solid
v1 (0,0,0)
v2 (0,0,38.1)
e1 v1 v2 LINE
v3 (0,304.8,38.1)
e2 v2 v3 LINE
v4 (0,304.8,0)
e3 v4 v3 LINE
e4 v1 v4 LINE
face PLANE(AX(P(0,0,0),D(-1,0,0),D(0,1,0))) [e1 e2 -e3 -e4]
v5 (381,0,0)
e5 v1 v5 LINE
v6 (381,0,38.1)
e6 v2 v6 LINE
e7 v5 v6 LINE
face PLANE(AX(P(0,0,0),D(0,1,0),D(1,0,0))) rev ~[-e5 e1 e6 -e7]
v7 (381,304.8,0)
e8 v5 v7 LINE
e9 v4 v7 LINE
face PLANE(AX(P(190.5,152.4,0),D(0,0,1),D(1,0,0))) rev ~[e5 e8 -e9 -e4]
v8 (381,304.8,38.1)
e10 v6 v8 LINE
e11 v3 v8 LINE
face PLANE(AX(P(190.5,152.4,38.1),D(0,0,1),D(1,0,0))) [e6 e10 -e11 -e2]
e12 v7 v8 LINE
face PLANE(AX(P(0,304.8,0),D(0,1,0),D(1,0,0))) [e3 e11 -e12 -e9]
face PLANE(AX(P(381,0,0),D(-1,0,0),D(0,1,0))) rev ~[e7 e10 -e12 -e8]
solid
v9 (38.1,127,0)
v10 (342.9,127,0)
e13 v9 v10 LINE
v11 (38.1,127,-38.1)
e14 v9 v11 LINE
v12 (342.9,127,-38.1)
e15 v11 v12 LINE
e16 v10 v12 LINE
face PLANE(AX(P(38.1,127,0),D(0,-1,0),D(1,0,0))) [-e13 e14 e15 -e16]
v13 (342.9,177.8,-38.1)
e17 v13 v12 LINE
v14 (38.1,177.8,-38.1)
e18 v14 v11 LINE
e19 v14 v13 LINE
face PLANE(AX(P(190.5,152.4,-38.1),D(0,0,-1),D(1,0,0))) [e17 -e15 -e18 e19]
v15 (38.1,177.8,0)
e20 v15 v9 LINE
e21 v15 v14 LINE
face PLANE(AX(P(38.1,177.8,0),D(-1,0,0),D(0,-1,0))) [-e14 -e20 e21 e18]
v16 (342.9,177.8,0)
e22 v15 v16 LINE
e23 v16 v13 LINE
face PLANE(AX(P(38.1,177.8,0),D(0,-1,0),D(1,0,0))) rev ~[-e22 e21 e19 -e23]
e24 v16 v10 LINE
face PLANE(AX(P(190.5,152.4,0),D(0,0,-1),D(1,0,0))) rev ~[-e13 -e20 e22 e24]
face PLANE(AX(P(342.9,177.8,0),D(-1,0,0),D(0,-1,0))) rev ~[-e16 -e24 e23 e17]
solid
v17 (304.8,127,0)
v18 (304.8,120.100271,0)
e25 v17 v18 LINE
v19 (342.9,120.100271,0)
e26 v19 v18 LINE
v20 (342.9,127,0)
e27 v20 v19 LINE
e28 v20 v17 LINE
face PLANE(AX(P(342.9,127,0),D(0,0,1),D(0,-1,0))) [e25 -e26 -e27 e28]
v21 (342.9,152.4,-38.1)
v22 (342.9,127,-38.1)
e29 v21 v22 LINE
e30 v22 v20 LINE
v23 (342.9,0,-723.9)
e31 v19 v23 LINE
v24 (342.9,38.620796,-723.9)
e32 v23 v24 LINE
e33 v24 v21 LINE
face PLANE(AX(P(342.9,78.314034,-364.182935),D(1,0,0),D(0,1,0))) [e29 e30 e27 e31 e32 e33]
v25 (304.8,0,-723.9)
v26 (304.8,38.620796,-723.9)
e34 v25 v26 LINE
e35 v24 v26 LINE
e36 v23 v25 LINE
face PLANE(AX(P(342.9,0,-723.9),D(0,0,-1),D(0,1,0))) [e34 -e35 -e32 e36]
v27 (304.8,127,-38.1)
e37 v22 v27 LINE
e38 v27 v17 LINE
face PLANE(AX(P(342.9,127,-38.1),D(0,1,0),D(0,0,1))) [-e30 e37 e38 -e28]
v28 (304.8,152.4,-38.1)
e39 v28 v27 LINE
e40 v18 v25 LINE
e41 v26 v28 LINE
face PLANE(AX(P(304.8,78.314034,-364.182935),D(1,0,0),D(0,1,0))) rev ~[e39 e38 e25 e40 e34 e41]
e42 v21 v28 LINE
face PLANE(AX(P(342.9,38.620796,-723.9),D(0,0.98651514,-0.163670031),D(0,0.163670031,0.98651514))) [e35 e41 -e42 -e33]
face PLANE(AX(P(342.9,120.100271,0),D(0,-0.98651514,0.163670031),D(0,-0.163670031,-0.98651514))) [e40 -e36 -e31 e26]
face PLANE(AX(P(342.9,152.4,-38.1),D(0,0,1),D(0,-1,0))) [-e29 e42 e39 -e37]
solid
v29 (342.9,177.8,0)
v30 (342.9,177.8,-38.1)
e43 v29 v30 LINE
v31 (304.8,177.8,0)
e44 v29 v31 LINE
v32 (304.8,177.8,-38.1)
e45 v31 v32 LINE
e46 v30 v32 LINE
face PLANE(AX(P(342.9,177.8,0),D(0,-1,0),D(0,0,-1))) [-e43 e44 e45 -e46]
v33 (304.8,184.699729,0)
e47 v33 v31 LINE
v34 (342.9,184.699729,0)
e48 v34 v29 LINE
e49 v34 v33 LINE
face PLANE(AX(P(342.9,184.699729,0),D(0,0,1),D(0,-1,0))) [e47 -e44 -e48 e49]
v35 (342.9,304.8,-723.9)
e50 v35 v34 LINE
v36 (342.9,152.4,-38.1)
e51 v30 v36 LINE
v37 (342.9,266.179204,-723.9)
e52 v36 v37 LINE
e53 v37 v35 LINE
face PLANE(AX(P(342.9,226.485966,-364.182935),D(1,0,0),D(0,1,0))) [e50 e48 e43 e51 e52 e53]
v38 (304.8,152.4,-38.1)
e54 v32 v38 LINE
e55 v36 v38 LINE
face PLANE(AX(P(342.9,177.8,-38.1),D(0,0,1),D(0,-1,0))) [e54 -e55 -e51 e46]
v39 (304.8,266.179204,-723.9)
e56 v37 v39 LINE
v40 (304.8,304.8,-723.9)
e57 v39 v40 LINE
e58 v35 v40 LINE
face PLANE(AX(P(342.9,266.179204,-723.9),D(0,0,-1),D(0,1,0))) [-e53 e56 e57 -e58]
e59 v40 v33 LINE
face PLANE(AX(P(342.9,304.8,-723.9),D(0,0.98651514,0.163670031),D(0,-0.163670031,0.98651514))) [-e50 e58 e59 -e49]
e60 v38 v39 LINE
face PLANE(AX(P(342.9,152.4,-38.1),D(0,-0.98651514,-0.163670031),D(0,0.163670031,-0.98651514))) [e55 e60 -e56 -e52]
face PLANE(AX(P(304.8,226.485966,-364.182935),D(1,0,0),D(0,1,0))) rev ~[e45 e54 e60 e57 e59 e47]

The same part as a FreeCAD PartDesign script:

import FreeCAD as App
import Part
import Sketcher
from FreeCAD import Vector
Q = App.Units.Quantity


def add_polygon(sketch, points):
    """Adds a closed chain of lines whose ends are joined by coincident constraints."""
    first, n = sketch.GeometryCount, len(points)
    for a, b in zip(points, points[1:] + points[:1]):
        sketch.addGeometry(Part.LineSegment(App.Vector(*a, 0), App.Vector(*b, 0)), False)
    for i in range(n):
        sketch.addConstraint(Sketcher.Constraint("Coincident", first + i, 2, first + (i + 1) % n, 1))

doc = App.newDocument("Part")
body = doc.addObject("PartDesign::Body", "Body")

sketch1 = body.newObject("Sketcher::SketchObject", "Sketch")
sketch1.AttachmentSupport = (doc.getObject("XY_Plane"), [""])
sketch1.MapMode = "FlatFace"
add_polygon(sketch1, [(0, 304.8), (0, 0), (381, 0), (381, 304.8)])
sketch1.addConstraint(Sketcher.Constraint("Vertical", 0))
sketch1.addConstraint(Sketcher.Constraint("Horizontal", 1))
sketch1.addConstraint(Sketcher.Constraint("Vertical", 2))
sketch1.addConstraint(Sketcher.Constraint("Horizontal", 3))
sketch1.addConstraint(Sketcher.Constraint("Coincident", 0, 2, -1, 1))
sketch1.addConstraint(Sketcher.Constraint("DistanceX", 1, 1, 1, 2, Q("15 in")))
sketch1.addConstraint(Sketcher.Constraint("DistanceY", 0, 2, 0, 1, Q("12 in")))
pad1 = body.newObject("PartDesign::Pad", "Pad")
pad1.Profile = sketch1
pad1.Length = Q("1.5 in")
body2 = doc.addObject("PartDesign::Body", "Body001")

sketch2 = body2.newObject("Sketcher::SketchObject", "Sketch001")
sketch2.AttachmentSupport = (doc.getObject("XY_Plane001"), [""])
sketch2.MapMode = "FlatFace"
add_polygon(sketch2, [(38.1, 127), (38.1, 177.8), (342.9, 177.8), (342.9, 127)])
sketch2.addConstraint(Sketcher.Constraint("Vertical", 0))
sketch2.addConstraint(Sketcher.Constraint("Horizontal", 1))
sketch2.addConstraint(Sketcher.Constraint("Vertical", 2))
sketch2.addConstraint(Sketcher.Constraint("Horizontal", 3))
sketch2.addConstraint(Sketcher.Constraint("DistanceX", 1, 1, 1, 2, Q("12 in")))
sketch2.addConstraint(Sketcher.Constraint("DistanceY", 0, 1, 0, 2, Q("2 in")))
sketch2.addConstraint(Sketcher.Constraint("DistanceY", -1, 1, 0, 2, Q("7 in")))
sketch2.addConstraint(Sketcher.Constraint("DistanceX", -1, 1, 0, 2, Q("1.5 in")))
pad2 = body2.newObject("PartDesign::Pad", "Pad001")
pad2.Profile = sketch2
pad2.Length = Q("1.5 in")
pad2.Reversed = True
body3 = doc.addObject("PartDesign::Body", "Body002")
body3.AllowCompound = True

sketch3 = body3.newObject("Sketcher::SketchObject", "Sketch002")
sketch3.AttachmentSupport = (doc.getObject("YZ_Plane002"), [""])
sketch3.MapMode = "FlatFace"
sketch3.AttachmentOffset = App.Placement(Vector(0, 0, 13.5 * 25.4), App.Rotation())
add_polygon(sketch3, [(127, 0), (120.100271, 0), (0, -723.9), (38.620796, -723.9), (152.4, -38.1), (127, -38.1)])
add_polygon(sketch3, [(177.8, -38.1), (152.4, -38.1), (266.179204, -723.9), (304.8, -723.9), (184.699729, 0), (177.8, 0)])
sketch3.addConstraint(Sketcher.Constraint("Horizontal", 0))
sketch3.addConstraint(Sketcher.Constraint("Horizontal", 2))
sketch3.addConstraint(Sketcher.Constraint("Horizontal", 4))
sketch3.addConstraint(Sketcher.Constraint("Vertical", 5))
sketch3.addConstraint(Sketcher.Constraint("Horizontal", 6))
sketch3.addConstraint(Sketcher.Constraint("Horizontal", 8))
sketch3.addConstraint(Sketcher.Constraint("Horizontal", 10))
sketch3.addConstraint(Sketcher.Constraint("Vertical", 11))
sketch3.addConstraint(Sketcher.Constraint("Coincident", 6, 2, 3, 2))
sketch3.addConstraint(Sketcher.Constraint("PointOnObject", 0, 2, -1))
sketch3.addConstraint(Sketcher.Constraint("PointOnObject", 1, 2, -2))
sketch3.addConstraint(Sketcher.Constraint("PointOnObject", 9, 2, -1))
sketch3.addConstraint(Sketcher.Constraint("Parallel", 1, 3))
sketch3.addConstraint(Sketcher.Constraint("Parallel", 7, 9))
sketch3.addConstraint(Sketcher.Constraint("Horizontal", 2, 2, 7, 2))
sketch3.addConstraint(Sketcher.Constraint("Equal", 4, 6))
sketch3.addConstraint(Sketcher.Constraint("Equal", 2, 8))
sketch3.addConstraint(Sketcher.Constraint("Equal", 0, 10))
sketch3.addConstraint(Sketcher.Constraint("DistanceX", 4, 2, 4, 1, Q("1 in")))
sketch3.addConstraint(Sketcher.Constraint("DistanceY", 5, 1, 5, 2, Q("1.5 in")))
sketch3.addConstraint(Sketcher.Constraint("DistanceX", -1, 1, 3, 2, Q("6 in")))
sketch3.addConstraint(Sketcher.Constraint("DistanceY", 2, 2, 3, 2, Q("27 in")))
sketch3.addConstraint(Sketcher.Constraint("Angle", 1, Q("-99.419983 deg")))
pad3 = body3.newObject("PartDesign::Pad", "Pad002")
pad3.Profile = sketch3
pad3.Length = Q("1.5 in")
pad3.Reversed = True

doc.recompute()
